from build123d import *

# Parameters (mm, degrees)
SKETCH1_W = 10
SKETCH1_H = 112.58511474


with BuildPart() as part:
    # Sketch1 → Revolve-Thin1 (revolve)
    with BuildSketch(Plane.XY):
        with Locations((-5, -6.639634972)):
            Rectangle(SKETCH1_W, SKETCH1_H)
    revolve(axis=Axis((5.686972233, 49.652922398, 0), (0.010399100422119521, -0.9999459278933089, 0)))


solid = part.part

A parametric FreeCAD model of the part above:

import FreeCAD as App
import Part
import Sketcher

V = App.Vector
Q = App.Units.Quantity


def add_polygon(sketch, points):
    """Adds a closed chain of lines whose ends are joined by coincident constraints."""
    first, n = sketch.GeometryCount, len(points)
    for a, b in zip(points, points[1:] + points[:1]):
        sketch.addGeometry(Part.LineSegment(App.Vector(*a, 0), App.Vector(*b, 0)), False)
    for i in range(n):
        sketch.addConstraint(Sketcher.Constraint("Coincident", first + i, 2, first + (i + 1) % n, 1))

doc = App.newDocument("Part")
body = doc.addObject("PartDesign::Body", "Body")

# Sketch on XY plane
sketch1 = doc.addObject("Sketcher::SketchObject", "Sketch")
body.addObject(sketch1)
sketch1.AttachmentSupport = (doc.XY_Plane, [""])
sketch1.MapMode = "FlatFace"
add_polygon(sketch1, [(-10, 50), (-10, -63), (0, -63), (0, 50)])  # lines 0-3
sketch1.addGeometry(Part.LineSegment(V(6, 50, 0), V(7, -63, 0)), True)  # axis
sketch1.addConstraint([
    Sketcher.Constraint("Vertical", 0),
    Sketcher.Constraint("Horizontal", 1),
    Sketcher.Constraint("Vertical", 2),
    Sketcher.Constraint("Horizontal", 3),
    Sketcher.Constraint("PointOnObject", 1, 2, -2),
    Sketcher.Constraint("DistanceX", 1, 1, 1, 2, Q("10 mm")),
    Sketcher.Constraint("DistanceX", 4, 1, 4, 2, Q("1.171802 mm")),
    Sketcher.Constraint("Distance", 4, Q("112.683018 mm")),
    Sketcher.Constraint("DistanceY", 0, 2, 0, 1, Q("112.585115 mm")),
    Sketcher.Constraint("DistanceY", 4, 2, -1, 1, Q("62.860881 mm")),
    Sketcher.Constraint("DistanceY", 2, 2, 4, 1, Q("0.163122 mm")),
    Sketcher.Constraint("DistanceX", -1, 1, 4, 1, Q("5.685276 mm")),
])
revolution = doc.addObject("PartDesign::Revolution", "Revolution")
body.addObject(revolution)
revolution.Profile = sketch1
revolution.ReferenceAxis = (sketch1, ["Axis0"])
revolution.Angle = 360

doc.recompute()
